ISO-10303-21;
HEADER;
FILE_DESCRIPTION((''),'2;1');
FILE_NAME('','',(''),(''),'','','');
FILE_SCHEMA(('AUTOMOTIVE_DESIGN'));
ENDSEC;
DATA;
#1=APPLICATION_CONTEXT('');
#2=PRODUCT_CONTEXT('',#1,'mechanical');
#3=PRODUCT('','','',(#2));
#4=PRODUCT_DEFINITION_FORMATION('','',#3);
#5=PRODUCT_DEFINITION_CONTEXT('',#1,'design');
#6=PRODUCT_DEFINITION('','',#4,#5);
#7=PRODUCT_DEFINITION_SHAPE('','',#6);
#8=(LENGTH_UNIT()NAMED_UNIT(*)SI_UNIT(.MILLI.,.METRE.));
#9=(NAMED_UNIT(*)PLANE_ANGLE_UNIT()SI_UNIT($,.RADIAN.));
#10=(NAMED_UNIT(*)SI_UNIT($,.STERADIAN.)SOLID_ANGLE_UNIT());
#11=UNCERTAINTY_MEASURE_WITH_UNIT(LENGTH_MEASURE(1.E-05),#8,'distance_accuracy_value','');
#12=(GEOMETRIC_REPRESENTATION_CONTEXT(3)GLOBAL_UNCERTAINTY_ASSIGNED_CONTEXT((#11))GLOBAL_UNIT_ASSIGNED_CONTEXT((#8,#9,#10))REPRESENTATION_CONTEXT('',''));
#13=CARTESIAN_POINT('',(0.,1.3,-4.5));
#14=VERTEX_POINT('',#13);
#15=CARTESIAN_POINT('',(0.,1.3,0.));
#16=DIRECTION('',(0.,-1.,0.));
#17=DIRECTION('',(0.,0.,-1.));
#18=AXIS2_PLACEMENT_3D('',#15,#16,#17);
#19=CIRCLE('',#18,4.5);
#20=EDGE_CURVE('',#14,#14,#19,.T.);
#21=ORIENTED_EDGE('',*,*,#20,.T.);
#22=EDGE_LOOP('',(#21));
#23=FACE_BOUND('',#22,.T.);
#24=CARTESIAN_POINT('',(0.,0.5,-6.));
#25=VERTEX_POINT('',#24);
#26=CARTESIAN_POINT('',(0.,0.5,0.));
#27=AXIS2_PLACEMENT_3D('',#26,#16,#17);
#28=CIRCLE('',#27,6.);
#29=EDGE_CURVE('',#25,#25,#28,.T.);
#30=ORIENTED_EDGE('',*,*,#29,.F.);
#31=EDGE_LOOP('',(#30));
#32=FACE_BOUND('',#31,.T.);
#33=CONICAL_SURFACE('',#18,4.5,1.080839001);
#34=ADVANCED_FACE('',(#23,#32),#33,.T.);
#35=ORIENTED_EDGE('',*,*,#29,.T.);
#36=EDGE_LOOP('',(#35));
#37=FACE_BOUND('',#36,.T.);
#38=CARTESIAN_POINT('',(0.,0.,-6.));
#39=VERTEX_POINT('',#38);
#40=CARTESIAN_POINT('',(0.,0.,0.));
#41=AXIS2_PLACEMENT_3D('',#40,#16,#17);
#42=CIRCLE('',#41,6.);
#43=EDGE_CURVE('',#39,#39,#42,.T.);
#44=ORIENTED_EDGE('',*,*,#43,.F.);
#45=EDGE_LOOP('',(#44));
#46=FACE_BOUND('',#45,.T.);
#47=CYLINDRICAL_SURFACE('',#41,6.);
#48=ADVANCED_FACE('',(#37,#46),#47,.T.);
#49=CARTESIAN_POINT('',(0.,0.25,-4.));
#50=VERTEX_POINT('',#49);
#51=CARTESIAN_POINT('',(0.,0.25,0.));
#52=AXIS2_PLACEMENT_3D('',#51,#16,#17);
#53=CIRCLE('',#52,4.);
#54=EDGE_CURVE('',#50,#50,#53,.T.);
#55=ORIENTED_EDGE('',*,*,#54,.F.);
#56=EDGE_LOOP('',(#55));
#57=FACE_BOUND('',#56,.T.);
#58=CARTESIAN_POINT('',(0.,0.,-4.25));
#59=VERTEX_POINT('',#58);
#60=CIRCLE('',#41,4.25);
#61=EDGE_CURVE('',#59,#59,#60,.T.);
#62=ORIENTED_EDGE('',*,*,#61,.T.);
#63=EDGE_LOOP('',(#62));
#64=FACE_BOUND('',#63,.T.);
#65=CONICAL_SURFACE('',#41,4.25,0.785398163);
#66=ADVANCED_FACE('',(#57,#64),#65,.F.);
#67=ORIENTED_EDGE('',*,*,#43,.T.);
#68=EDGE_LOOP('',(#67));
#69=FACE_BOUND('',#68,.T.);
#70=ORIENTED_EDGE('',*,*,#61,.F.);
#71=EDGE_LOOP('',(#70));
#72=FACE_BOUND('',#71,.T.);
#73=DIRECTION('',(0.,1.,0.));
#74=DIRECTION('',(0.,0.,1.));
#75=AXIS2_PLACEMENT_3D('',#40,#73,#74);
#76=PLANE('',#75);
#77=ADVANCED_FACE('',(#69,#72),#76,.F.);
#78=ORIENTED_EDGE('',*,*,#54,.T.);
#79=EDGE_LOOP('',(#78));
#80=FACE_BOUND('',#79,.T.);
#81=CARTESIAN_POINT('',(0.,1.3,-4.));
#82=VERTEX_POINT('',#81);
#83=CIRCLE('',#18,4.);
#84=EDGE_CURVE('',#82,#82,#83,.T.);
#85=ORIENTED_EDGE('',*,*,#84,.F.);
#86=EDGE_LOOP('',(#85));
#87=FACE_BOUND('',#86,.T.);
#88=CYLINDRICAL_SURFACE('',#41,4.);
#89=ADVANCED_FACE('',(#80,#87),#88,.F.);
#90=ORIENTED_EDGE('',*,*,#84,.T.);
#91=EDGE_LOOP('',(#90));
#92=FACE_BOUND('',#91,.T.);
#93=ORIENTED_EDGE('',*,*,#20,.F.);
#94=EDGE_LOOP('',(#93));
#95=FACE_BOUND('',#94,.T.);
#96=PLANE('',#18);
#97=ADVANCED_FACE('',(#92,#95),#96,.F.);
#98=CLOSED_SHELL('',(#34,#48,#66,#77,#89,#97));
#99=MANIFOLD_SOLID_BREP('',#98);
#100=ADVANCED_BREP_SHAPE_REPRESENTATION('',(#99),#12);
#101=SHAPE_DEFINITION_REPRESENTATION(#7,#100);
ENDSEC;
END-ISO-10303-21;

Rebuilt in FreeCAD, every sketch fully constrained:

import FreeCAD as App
import Part
import Sketcher
Q = App.Units.Quantity


def add_polygon(sketch, points):
    """Adds a closed chain of lines whose ends are joined by coincident constraints."""
    first, n = sketch.GeometryCount, len(points)
    for a, b in zip(points, points[1:] + points[:1]):
        sketch.addGeometry(Part.LineSegment(App.Vector(*a, 0), App.Vector(*b, 0)), False)
    for i in range(n):
        sketch.addConstraint(Sketcher.Constraint("Coincident", first + i, 2, first + (i + 1) % n, 1))

doc = App.newDocument("Part")
body = doc.addObject("PartDesign::Body", "Body")

# Sketch on XY plane
sketch1 = body.newObject("Sketcher::SketchObject", "Sketch")
sketch1.AttachmentSupport = (doc.getObject("XY_Plane"), [""])
sketch1.MapMode = "FlatFace"
add_polygon(sketch1, [(-4.25, 0), (-4, 0.25), (-4, 1.3), (-4.5, 1.3), (-6, 0.5), (-6, 0)])  # lines 0-5
sketch1.addConstraint([
    Sketcher.Constraint("Vertical", 1),
    Sketcher.Constraint("Horizontal", 2),
    Sketcher.Constraint("Vertical", 4),
    Sketcher.Constraint("Horizontal", 5),
    Sketcher.Constraint("PointOnObject", 4, 2, -1),
    Sketcher.Constraint("Equal", 2, 4),
    Sketcher.Constraint("Angle", 0, Q("45 deg")),
    Sketcher.Constraint("DistanceX", 2, 2, 2, 1, 0.5),
    Sketcher.Constraint("DistanceX", 0, 2, -1, 1, 4.0),
    Sketcher.Constraint("DistanceX", 3, 2, -1, 1, 6.0),
    Sketcher.Constraint("Distance", 3, 1.7),
    Sketcher.Constraint("DistanceX", 5, 1, 5, 2, 1.75),
])
revolution = body.newObject("PartDesign::Revolution", "Revolution")
revolution.Profile = sketch1
revolution.ReferenceAxis = (sketch1, ["V_Axis"])
revolution.Angle = 360

doc.recompute()
